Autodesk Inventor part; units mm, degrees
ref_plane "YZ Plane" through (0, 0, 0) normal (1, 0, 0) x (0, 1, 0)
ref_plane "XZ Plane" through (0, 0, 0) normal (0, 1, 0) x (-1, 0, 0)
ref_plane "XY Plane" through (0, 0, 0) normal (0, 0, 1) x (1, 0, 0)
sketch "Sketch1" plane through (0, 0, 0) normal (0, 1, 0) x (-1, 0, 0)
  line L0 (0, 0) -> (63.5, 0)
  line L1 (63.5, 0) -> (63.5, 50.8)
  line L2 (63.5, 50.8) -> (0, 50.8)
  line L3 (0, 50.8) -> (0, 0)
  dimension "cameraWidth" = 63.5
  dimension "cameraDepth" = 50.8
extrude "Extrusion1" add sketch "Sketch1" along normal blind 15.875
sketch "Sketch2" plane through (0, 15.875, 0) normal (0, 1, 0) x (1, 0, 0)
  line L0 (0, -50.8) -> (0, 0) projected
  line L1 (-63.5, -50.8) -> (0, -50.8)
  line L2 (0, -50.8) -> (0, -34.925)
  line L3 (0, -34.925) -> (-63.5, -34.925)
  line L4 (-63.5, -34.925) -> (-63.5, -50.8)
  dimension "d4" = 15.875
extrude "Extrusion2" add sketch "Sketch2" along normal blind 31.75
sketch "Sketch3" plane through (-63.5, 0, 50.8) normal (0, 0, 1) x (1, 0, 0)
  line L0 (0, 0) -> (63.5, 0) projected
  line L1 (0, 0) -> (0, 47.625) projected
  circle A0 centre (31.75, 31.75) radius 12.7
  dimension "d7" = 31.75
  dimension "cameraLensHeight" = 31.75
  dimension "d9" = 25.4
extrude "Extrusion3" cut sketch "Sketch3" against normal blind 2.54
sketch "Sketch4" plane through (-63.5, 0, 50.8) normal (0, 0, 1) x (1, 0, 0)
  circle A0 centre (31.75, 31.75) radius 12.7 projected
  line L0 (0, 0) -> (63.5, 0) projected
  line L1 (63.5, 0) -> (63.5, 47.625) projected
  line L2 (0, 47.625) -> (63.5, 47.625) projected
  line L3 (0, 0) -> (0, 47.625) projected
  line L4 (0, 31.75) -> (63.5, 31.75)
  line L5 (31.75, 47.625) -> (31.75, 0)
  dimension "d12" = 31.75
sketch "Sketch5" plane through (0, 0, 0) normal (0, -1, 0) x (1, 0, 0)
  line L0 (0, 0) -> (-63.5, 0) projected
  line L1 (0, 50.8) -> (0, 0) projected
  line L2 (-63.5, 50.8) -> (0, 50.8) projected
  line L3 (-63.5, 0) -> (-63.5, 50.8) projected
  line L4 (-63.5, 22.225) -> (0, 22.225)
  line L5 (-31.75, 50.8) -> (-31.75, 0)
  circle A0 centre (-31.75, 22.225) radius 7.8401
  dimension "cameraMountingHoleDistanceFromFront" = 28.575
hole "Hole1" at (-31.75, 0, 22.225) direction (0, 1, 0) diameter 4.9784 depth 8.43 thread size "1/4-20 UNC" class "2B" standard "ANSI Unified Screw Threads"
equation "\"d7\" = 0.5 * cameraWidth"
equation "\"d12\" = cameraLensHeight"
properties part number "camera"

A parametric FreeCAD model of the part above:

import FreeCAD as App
import Part
import Sketcher
from FreeCAD import Vector
Q = App.Units.Quantity


def add_polygon(sketch, points):
    """Adds a closed chain of lines whose ends are joined by coincident constraints."""
    first, n = sketch.GeometryCount, len(points)
    for a, b in zip(points, points[1:] + points[:1]):
        sketch.addGeometry(Part.LineSegment(App.Vector(*a, 0), App.Vector(*b, 0)), False)
    for i in range(n):
        sketch.addConstraint(Sketcher.Constraint("Coincident", first + i, 2, first + (i + 1) % n, 1))

doc = App.newDocument("Part")
body = doc.addObject("PartDesign::Body", "Body")

sketch1 = doc.addObject("Sketcher::SketchObject", "Sketch")
body.addObject(sketch1)
sketch1.AttachmentSupport = (doc.XZ_Plane, [""])
sketch1.MapMode = "FlatFace"
add_polygon(sketch1, [(0, 51), (0, 0), (-64, 0), (-64, 51)])
sketch1.addConstraint([
    Sketcher.Constraint("Vertical", 0),
    Sketcher.Constraint("Horizontal", 1),
    Sketcher.Constraint("Vertical", 2),
    Sketcher.Constraint("Horizontal", 3),
    Sketcher.Constraint("Coincident", 0, 2, -1, 1),
    Sketcher.Constraint("DistanceY", 0, 2, 0, 1, Q("2 in")),
    Sketcher.Constraint("DistanceX", 1, 2, 1, 1, Q("2.5 in")),
])
pad1 = doc.addObject("PartDesign::Pad", "Pad")
body.addObject(pad1)
pad1.Profile = sketch1
pad1.Length = Q("0.625 in")
pad1.Reversed = True

sketch2 = doc.addObject("Sketcher::SketchObject", "Sketch001")
body.addObject(sketch2)
sketch2.AttachmentSupport = (doc.XZ_Plane, [""])
sketch2.MapMode = "FlatFace"
sketch2.AttachmentOffset = App.Placement(Vector(0, 0, -0.625 * 25.4), App.Rotation())
add_polygon(sketch2, [(-64, 51), (0, 51), (0, 35), (-64, 35)])
sketch2.addConstraint([
    Sketcher.Constraint("Horizontal", 0),
    Sketcher.Constraint("Vertical", 1),
    Sketcher.Constraint("Horizontal", 2),
    Sketcher.Constraint("Vertical", 3),
    Sketcher.Constraint("PointOnObject", 0, 2, -2),
    Sketcher.Constraint("DistanceY", 1, 2, 1, 1, Q("0.625 in")),
    Sketcher.Constraint("DistanceX", 0, 1, 0, 2, Q("2.5 in")),
    Sketcher.Constraint("DistanceY", -1, 1, 0, 2, Q("2 in")),
])
pad2 = doc.addObject("PartDesign::Pad", "Pad001")
body.addObject(pad2)
pad2.Profile = sketch2
pad2.Length = Q("1.25 in")
pad2.Reversed = True

sketch3 = doc.addObject("Sketcher::SketchObject", "Sketch002")
body.addObject(sketch3)
sketch3.AttachmentSupport = (doc.XY_Plane, [""])
sketch3.MapMode = "FlatFace"
sketch3.AttachmentOffset = App.Placement(Vector(0, 0, 2 * 25.4), App.Rotation())
sketch3.addGeometry(Part.Circle(Vector(-32, 32, 0), Vector(0, 0, 1), 13), False)
sketch3.addConstraint([
    Sketcher.Constraint("Diameter", 0, Q("1 in")),
    Sketcher.Constraint("DistanceX", 0, 3, -1, 1, Q("1.25 in")),
    Sketcher.Constraint("DistanceY", -1, 1, 0, 3, Q("1.25 in")),
])
pocket1 = doc.addObject("PartDesign::Pocket", "Pocket")
body.addObject(pocket1)
pocket1.Profile = sketch3
pocket1.Length = Q("0.1 in")

sketch4 = doc.addObject("Sketcher::SketchObject", "Sketch003")
body.addObject(sketch4)
sketch4.AttachmentSupport = (doc.XZ_Plane, [""])
sketch4.MapMode = "FlatFace"
sketch4.addGeometry(Part.Circle(Vector(-31.8, 22.2, 0), Vector(0, 0, 1), 2.5), False)
sketch4.addConstraint([
    Sketcher.Constraint("Diameter", 0, Q("0.196 in")),
    Sketcher.Constraint("DistanceX", 0, 3, -1, 1, Q("1.25 in")),
    Sketcher.Constraint("DistanceY", -1, 1, 0, 3, Q("0.875 in")),
])
doc.recompute()
hole = doc.addObject("PartDesign::Hole", "Hole")
body.addObject(hole)
hole.Profile = sketch4
hole.ThreadType = "None"
hole.Diameter = Q("0.196 in")
hole.DepthType = "Dimension"
hole.Depth = Q("0.3318898 in")
hole.DrillPoint = "Flat"

doc.recompute()
